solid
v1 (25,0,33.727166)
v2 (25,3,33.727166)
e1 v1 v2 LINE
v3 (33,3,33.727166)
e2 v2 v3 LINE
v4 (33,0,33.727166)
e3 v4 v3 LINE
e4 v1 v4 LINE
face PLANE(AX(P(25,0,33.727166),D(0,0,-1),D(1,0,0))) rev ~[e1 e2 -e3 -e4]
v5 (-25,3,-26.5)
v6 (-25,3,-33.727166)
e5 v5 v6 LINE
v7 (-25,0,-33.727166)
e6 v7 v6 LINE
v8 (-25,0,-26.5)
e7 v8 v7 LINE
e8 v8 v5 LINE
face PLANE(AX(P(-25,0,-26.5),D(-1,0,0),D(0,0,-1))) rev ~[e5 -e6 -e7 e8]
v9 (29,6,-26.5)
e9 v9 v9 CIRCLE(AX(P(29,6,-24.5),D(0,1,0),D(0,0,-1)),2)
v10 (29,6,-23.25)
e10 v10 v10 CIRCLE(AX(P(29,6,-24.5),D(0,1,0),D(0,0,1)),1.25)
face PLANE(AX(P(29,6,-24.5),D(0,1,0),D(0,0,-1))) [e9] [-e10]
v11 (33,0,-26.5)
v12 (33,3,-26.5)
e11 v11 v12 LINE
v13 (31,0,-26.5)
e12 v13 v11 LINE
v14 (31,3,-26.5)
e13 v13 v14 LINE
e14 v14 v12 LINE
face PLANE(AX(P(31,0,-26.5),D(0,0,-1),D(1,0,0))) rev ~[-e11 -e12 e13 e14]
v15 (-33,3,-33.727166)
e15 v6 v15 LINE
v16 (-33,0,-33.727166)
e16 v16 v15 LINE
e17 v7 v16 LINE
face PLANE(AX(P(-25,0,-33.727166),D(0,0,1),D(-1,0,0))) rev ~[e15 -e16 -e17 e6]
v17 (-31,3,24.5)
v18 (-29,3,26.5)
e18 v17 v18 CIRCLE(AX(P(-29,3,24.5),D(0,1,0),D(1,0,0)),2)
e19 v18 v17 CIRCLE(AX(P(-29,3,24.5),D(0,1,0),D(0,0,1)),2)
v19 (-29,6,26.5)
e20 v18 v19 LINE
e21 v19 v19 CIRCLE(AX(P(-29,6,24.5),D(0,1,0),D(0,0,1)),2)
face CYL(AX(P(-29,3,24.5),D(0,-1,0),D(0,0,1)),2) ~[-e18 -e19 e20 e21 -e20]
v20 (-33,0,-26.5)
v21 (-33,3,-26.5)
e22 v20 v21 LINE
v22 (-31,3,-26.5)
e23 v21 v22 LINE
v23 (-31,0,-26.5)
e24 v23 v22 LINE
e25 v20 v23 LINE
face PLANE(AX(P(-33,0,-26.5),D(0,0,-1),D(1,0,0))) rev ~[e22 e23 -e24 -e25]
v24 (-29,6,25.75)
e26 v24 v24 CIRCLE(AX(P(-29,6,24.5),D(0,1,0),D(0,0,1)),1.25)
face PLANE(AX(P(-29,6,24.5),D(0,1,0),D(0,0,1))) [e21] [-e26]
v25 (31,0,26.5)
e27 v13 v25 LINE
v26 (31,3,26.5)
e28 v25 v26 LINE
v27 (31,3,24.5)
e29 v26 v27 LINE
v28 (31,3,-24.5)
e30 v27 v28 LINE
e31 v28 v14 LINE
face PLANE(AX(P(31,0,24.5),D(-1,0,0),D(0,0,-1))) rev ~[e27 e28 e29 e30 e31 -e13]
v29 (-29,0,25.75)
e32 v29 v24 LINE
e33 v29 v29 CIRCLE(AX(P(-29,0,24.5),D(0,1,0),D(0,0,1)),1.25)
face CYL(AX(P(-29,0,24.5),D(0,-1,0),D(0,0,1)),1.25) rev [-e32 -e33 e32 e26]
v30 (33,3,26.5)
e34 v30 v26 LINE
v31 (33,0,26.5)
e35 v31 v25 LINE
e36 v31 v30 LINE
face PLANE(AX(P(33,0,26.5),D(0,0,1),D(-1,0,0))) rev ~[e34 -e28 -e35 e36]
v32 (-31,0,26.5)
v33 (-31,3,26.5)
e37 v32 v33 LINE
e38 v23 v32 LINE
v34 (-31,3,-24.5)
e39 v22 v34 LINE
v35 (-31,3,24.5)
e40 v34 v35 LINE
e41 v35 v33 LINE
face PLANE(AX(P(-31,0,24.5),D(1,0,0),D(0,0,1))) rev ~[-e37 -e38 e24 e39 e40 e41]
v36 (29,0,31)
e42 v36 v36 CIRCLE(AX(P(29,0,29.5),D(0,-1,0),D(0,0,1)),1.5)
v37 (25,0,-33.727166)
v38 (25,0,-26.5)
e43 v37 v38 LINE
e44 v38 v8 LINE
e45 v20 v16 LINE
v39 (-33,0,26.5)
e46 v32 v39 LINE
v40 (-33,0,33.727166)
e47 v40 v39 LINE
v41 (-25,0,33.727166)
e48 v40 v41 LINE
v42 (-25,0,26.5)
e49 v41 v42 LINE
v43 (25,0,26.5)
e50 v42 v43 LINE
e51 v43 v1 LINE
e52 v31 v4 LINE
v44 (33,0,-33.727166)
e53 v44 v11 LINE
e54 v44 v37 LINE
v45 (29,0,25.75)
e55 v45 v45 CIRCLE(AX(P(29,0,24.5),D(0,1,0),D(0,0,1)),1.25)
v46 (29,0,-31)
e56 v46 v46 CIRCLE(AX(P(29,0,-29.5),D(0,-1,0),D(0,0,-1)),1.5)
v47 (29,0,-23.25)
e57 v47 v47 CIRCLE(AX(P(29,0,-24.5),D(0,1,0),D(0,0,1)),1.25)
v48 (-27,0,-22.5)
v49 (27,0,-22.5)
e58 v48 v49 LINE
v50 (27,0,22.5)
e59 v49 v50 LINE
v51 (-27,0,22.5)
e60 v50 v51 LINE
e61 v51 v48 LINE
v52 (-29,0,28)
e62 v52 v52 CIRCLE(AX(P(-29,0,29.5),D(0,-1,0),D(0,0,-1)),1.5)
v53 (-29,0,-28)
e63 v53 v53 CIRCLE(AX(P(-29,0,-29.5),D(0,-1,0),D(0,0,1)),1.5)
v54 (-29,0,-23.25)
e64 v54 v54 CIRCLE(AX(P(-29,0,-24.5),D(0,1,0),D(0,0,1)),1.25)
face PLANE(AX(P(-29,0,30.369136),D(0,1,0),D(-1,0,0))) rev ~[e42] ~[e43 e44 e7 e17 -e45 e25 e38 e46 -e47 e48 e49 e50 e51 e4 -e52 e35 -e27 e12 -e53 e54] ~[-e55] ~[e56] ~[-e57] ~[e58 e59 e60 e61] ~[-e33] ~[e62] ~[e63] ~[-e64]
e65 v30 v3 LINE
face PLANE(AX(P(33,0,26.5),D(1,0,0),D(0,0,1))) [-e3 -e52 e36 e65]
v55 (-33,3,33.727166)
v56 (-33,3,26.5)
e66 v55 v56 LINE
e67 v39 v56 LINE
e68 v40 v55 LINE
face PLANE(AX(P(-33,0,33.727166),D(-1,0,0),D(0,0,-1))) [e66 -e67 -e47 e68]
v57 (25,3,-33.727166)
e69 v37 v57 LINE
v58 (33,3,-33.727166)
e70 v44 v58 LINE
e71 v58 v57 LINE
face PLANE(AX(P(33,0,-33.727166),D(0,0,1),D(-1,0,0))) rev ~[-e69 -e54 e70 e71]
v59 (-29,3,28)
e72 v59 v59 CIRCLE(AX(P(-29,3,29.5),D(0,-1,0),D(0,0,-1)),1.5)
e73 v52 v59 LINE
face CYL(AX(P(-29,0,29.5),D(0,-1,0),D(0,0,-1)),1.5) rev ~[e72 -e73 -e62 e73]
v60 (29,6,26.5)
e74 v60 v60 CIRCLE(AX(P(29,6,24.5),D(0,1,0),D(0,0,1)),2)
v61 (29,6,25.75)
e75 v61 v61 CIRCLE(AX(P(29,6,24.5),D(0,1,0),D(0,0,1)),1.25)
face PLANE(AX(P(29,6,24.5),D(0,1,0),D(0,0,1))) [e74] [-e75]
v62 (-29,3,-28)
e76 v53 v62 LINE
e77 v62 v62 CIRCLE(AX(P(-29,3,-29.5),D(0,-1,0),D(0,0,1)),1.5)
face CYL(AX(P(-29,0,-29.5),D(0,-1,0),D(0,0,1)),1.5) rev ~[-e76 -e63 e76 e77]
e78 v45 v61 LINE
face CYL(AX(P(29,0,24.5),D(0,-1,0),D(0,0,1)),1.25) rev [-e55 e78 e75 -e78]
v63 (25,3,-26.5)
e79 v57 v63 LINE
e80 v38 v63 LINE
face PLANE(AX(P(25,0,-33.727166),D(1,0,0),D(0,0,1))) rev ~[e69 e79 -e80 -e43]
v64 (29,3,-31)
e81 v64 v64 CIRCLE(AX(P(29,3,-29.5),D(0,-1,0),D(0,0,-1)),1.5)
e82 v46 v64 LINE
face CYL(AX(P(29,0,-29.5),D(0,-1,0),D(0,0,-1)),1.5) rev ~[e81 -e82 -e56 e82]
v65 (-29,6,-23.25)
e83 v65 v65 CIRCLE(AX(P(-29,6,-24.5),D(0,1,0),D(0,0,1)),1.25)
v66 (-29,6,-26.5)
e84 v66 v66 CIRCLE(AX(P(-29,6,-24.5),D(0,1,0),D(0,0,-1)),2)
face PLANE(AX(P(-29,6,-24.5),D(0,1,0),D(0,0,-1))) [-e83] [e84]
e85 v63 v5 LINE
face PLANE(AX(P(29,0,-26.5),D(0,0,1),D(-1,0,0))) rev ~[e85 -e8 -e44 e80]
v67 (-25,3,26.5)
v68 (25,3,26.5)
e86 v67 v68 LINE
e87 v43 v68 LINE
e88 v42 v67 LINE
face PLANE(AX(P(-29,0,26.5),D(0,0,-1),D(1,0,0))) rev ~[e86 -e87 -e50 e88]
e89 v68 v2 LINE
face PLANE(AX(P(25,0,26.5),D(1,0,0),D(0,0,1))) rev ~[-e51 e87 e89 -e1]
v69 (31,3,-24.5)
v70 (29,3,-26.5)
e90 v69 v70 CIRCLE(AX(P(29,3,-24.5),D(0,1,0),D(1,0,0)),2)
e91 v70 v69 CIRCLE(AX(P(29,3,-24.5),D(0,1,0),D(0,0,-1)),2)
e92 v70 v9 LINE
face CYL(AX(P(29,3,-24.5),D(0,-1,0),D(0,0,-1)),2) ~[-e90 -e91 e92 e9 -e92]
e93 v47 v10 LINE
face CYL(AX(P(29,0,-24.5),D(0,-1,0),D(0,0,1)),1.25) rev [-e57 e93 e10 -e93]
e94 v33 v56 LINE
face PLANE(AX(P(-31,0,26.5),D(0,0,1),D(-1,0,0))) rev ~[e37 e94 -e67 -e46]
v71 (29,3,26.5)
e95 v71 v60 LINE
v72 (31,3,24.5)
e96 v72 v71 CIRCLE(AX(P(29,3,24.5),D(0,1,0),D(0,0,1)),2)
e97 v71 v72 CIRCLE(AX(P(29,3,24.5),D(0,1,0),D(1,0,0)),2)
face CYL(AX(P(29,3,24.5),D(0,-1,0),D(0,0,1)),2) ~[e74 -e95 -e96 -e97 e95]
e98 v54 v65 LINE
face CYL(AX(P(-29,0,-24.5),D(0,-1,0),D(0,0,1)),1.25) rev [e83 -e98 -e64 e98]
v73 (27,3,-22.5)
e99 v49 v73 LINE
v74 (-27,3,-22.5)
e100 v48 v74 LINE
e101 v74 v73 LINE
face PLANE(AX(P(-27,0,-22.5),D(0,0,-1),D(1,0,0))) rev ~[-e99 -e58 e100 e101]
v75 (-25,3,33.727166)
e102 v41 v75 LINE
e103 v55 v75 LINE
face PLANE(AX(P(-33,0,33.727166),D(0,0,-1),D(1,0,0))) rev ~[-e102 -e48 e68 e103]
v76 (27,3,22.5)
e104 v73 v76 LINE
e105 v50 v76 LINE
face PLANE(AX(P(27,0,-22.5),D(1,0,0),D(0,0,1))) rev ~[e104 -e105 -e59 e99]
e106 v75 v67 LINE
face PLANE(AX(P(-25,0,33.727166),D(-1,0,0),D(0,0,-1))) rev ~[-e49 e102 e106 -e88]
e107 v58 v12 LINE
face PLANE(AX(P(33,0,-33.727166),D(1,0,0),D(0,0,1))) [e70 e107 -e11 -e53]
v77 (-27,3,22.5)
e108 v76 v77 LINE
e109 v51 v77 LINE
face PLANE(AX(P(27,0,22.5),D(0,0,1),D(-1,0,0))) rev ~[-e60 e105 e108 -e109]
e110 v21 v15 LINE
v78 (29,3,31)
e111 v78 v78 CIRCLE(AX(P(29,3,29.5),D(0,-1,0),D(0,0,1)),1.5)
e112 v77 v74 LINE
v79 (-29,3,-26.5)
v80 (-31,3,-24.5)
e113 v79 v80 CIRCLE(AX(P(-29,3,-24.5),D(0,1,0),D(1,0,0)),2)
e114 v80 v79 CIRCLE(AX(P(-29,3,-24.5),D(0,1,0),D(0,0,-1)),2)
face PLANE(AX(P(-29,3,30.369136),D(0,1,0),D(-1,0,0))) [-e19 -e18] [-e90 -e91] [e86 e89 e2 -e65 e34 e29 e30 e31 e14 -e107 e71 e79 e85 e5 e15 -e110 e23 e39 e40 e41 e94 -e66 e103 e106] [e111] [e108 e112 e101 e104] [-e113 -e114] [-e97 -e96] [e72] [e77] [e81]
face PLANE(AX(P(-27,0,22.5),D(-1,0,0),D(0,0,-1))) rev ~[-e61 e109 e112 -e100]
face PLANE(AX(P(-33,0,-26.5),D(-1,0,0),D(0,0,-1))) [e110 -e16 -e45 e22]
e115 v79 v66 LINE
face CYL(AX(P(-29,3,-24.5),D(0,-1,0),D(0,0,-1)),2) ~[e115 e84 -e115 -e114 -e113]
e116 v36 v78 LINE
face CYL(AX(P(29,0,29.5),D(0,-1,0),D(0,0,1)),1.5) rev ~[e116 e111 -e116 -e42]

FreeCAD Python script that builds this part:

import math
import FreeCAD as App
import Part
import Sketcher
from FreeCAD import Vector

doc = App.newDocument("Part")
params = doc.addObject("Spreadsheet::Sheet", "Params")
for row, (alias, value) in enumerate([
    ("sketch1_radius", "2 mm"),
    ("sketch1_diameter", "2.5 mm"),
    ("sketch1_width", "58 mm"),
    ("sketch1_width2", "54 mm"),
    ("sketch1_height", "49 mm"),
    ("pad1_length", "3 mm"),
    ("sketch2_diameter", "4 mm"),
    ("sketch2_diameter2", "2.5 mm"),
    ("pad2_length", "3 mm"),
    ("sketch3_diameter", "3 mm"),
    ("sketch3_radius", "2 mm"),
    ("sketch3_width", "2 mm"),
    ("pad3_length", "3 mm"),
    ("sketch4_width", "2 mm"),
    ("sketch4_width2", "4 mm"),
    ("pad4_length", "3 mm"),
], start=1):
    params.set(f"A{row}", alias)
    params.set(f"B{row}", "=" + value)
    params.setAlias(f"B{row}", alias)

body = doc.addObject("PartDesign::Body", "Body")

sketch1 = doc.addObject("Sketcher::SketchObject", "Sketch")
body.addObject(sketch1)
sketch1.AttachmentSupport = (doc.XZ_Plane, [""])
sketch1.MapMode = "FlatFace"
sketch1.addGeometry([
    Part.LineSegment(Vector(-29, 26.5, 0), Vector(29, 26.5, 0)),
    Part.ArcOfCircle(Part.Circle(Vector(29, 24.5, 0), Vector(0, 0, 1), 2), math.radians(0), math.radians(90)),
    Part.LineSegment(Vector(31, 24.5, 0), Vector(31, -24.5, 0)),
    Part.ArcOfCircle(Part.Circle(Vector(29, -24.5, 0), Vector(0, 0, 1), 2), math.radians(-90), math.radians(0)),
    Part.LineSegment(Vector(29, -26.5, 0), Vector(-29, -26.5, 0)),
    Part.ArcOfCircle(Part.Circle(Vector(-29, -24.5, 0), Vector(0, 0, 1), 2), math.radians(180), math.radians(270)),
    Part.LineSegment(Vector(-31, -24.5, 0), Vector(-31, 24.5, 0)),
    Part.ArcOfCircle(Part.Circle(Vector(-29, 24.5, 0), Vector(0, 0, 1), 2), math.radians(90), math.radians(180)),
    Part.LineSegment(Vector(27, 22.5, 0), Vector(-27, 22.5, 0)),
    Part.LineSegment(Vector(-27, 22.5, 0), Vector(-27, -22.5, 0)),
    Part.LineSegment(Vector(-27, -22.5, 0), Vector(27, -22.5, 0)),
    Part.LineSegment(Vector(27, -22.5, 0), Vector(27, 22.5, 0)),
    Part.Circle(Vector(-29, 24.5, 0), Vector(0, 0, 1), 1.2),
    Part.Circle(Vector(29, 24.5, 0), Vector(0, 0, 1), 1.2),
    Part.Circle(Vector(-29, -24.5, 0), Vector(0, 0, 1), 1.2),
    Part.Circle(Vector(29, -24.5, 0), Vector(0, 0, 1), 1.2),
], False)
sketch1.addConstraint([
    Sketcher.Constraint("Tangent", 0, 2, 1, 2),
    Sketcher.Constraint("Tangent", 1, 1, 2, 1),
    Sketcher.Constraint("Tangent", 2, 2, 3, 2),
    Sketcher.Constraint("Tangent", 3, 1, 4, 1),
    Sketcher.Constraint("Tangent", 4, 2, 5, 2),
    Sketcher.Constraint("Tangent", 5, 1, 6, 1),
    Sketcher.Constraint("Tangent", 6, 2, 7, 2),
    Sketcher.Constraint("Tangent", 7, 1, 0, 1),
    Sketcher.Constraint("Coincident", 8, 2, 9, 1),
    Sketcher.Constraint("Coincident", 9, 2, 10, 1),
    Sketcher.Constraint("Coincident", 10, 2, 11, 1),
    Sketcher.Constraint("Coincident", 11, 2, 8, 1),
    Sketcher.Constraint("Horizontal", 0),
    Sketcher.Constraint("Vertical", 2),
    Sketcher.Constraint("Horizontal", 4),
    Sketcher.Constraint("Vertical", 6),
    Sketcher.Constraint("Horizontal", 8),
    Sketcher.Constraint("Vertical", 9),
    Sketcher.Constraint("Horizontal", 10),
    Sketcher.Constraint("Vertical", 11),
    Sketcher.Constraint("Coincident", 12, 3, 7, 3),
    Sketcher.Constraint("Coincident", 13, 3, 1, 3),
    Sketcher.Constraint("Coincident", 14, 3, 5, 3),
    Sketcher.Constraint("Coincident", 15, 3, 3, 3),
    Sketcher.Constraint("Equal", 1, 3),
    Sketcher.Constraint("Equal", 3, 5),
    Sketcher.Constraint("Equal", 5, 7),
    Sketcher.Constraint("Equal", 12, 13),
    Sketcher.Constraint("Equal", 13, 14),
    Sketcher.Constraint("Equal", 14, 15),
    Sketcher.Constraint("Symmetric", 1, 3, 5, 3, -1, 1),
    Sketcher.Constraint("Symmetric", 8, 2, 10, 2, -1, 1),
    Sketcher.Constraint("Radius", 1, 2.0),
    Sketcher.Constraint("Diameter", 12, 2.5),
    Sketcher.Constraint("DistanceX", 0, 1, 0, 2, 58.0),
    Sketcher.Constraint("DistanceX", 8, 2, 8, 1, 54.0),
    Sketcher.Constraint("DistanceY", 2, 2, 2, 1, 49.0),
    Sketcher.Constraint("DistanceY", 9, 2, 9, 1, 45.0),
])
sketch1.setExpression("Constraints[32]", "Params.sketch1_radius")
sketch1.setExpression("Constraints[33]", "Params.sketch1_diameter")
sketch1.setExpression("Constraints[34]", "Params.sketch1_width")
sketch1.setExpression("Constraints[35]", "Params.sketch1_width2")
sketch1.setExpression("Constraints[36]", "Params.sketch1_height")
pad1 = doc.addObject("PartDesign::Pad", "Pad")
body.addObject(pad1)
pad1.Profile = sketch1
pad1.setExpression("Length", "Params.pad1_length")
pad1.Reversed = True

sketch2 = doc.addObject("Sketcher::SketchObject", "Sketch001")
body.addObject(sketch2)
sketch2.AttachmentSupport = (doc.XZ_Plane, [""])
sketch2.MapMode = "FlatFace"
sketch2.AttachmentOffset = App.Placement(Vector(0, 0, -3), App.Rotation())
sketch2.addGeometry([
    Part.Circle(Vector(-29, -24.5, 0), Vector(0, 0, 1), 2),
    Part.Circle(Vector(-29, -24.5, 0), Vector(0, 0, 1), 1.2),
    Part.Circle(Vector(29, -24.5, 0), Vector(0, 0, 1), 2),
    Part.Circle(Vector(29, -24.5, 0), Vector(0, 0, 1), 1.2),
    Part.Circle(Vector(-29, 24.5, 0), Vector(0, 0, 1), 2),
    Part.Circle(Vector(-29, 24.5, 0), Vector(0, 0, 1), 1.2),
    Part.Circle(Vector(29, 24.5, 0), Vector(0, 0, 1), 2),
    Part.Circle(Vector(29, 24.5, 0), Vector(0, 0, 1), 1.2),
], False)
sketch2.addConstraint([
    Sketcher.Constraint("Coincident", 1, 3, 0, 3),
    Sketcher.Constraint("Coincident", 3, 3, 2, 3),
    Sketcher.Constraint("Coincident", 5, 3, 4, 3),
    Sketcher.Constraint("Coincident", 7, 3, 6, 3),
    Sketcher.Constraint("Equal", 0, 2),
    Sketcher.Constraint("Equal", 1, 3),
    Sketcher.Constraint("Equal", 2, 4),
    Sketcher.Constraint("Equal", 3, 5),
    Sketcher.Constraint("Equal", 4, 6),
    Sketcher.Constraint("Equal", 5, 7),
    Sketcher.Constraint("Symmetric", 2, 3, 4, 3, -1, 1),
    Sketcher.Constraint("Symmetric", 0, 3, 6, 3, -1, 1),
    Sketcher.Constraint("Symmetric", 0, 3, 2, 3, -2),
    Sketcher.Constraint("Diameter", 0, 4.0),
    Sketcher.Constraint("Diameter", 1, 2.5),
    Sketcher.Constraint("DistanceX", 0, 3, -1, 1, 29.0),
    Sketcher.Constraint("DistanceY", 0, 3, 4, 3, 49.0),
])
sketch2.setExpression("Constraints[13]", "Params.sketch2_diameter")
sketch2.setExpression("Constraints[14]", "Params.sketch2_diameter2")
pad2 = doc.addObject("PartDesign::Pad", "Pad001")
body.addObject(pad2)
pad2.Profile = sketch2
pad2.setExpression("Length", "Params.pad2_length")
pad2.Reversed = True

sketch3 = doc.addObject("Sketcher::SketchObject", "Sketch002")
body.addObject(sketch3)
sketch3.AttachmentSupport = (doc.XZ_Plane, [""])
sketch3.MapMode = "FlatFace"
sketch3.addGeometry([
    Part.LineSegment(Vector(-31, 31.7, 0), Vector(-31, 24.5, 0)),
    Part.ArcOfCircle(Part.Circle(Vector(-29, 24.5, 0), Vector(0, 0, 1), 2), math.radians(90), math.radians(180)),
    Part.LineSegment(Vector(-29, 26.5, 0), Vector(-27, 26.5, 0)),
    Part.LineSegment(Vector(-27, 26.5, 0), Vector(-27, 31.7, 0)),
    Part.LineSegment(Vector(-27, 31.7, 0), Vector(-31, 31.7, 0)),
    Part.Circle(Vector(-29, 29.5, 0), Vector(0, 0, 1), 1.5),
    Part.LineSegment(Vector(27, 26.5, 0), Vector(29, 26.5, 0)),
    Part.ArcOfCircle(Part.Circle(Vector(29, 24.5, 0), Vector(0, 0, 1), 2), math.radians(0), math.radians(90)),
    Part.LineSegment(Vector(31, 24.5, 0), Vector(31, 31.7, 0)),
    Part.LineSegment(Vector(31, 31.7, 0), Vector(27, 31.7, 0)),
    Part.LineSegment(Vector(27, 31.7, 0), Vector(27, 26.5, 0)),
    Part.Circle(Vector(29, 29.5, 0), Vector(0, 0, 1), 1.5),
    Part.LineSegment(Vector(31, -31.7, 0), Vector(31, -24.5, 0)),
    Part.ArcOfCircle(Part.Circle(Vector(29, -24.5, 0), Vector(0, 0, 1), 2), math.radians(-90), math.radians(0)),
    Part.LineSegment(Vector(29, -26.5, 0), Vector(27, -26.5, 0)),
    Part.LineSegment(Vector(27, -26.5, 0), Vector(27, -31.7, 0)),
    Part.LineSegment(Vector(27, -31.7, 0), Vector(31, -31.7, 0)),
    Part.Circle(Vector(29, -29.5, 0), Vector(0, 0, 1), 1.5),
    Part.LineSegment(Vector(-27, -26.5, 0), Vector(-29, -26.5, 0)),
    Part.ArcOfCircle(Part.Circle(Vector(-29, -24.5, 0), Vector(0, 0, 1), 2), math.radians(-180), math.radians(-90)),
    Part.LineSegment(Vector(-31, -24.5, 0), Vector(-31, -31.7, 0)),
    Part.LineSegment(Vector(-31, -31.7, 0), Vector(-27, -31.7, 0)),
    Part.LineSegment(Vector(-27, -31.7, 0), Vector(-27, -26.5, 0)),
    Part.Circle(Vector(-29, -29.5, 0), Vector(0, 0, 1), 1.5),
], False)
sketch3.addConstraint([
    Sketcher.Constraint("Tangent", 0, 2, 1, 2),
    Sketcher.Constraint("Tangent", 1, 1, 2, 1),
    Sketcher.Constraint("Coincident", 2, 2, 3, 1),
    Sketcher.Constraint("Coincident", 3, 2, 4, 1),
    Sketcher.Constraint("Coincident", 4, 2, 0, 1),
    Sketcher.Constraint("Tangent", 6, 2, 7, 2),
    Sketcher.Constraint("Tangent", 7, 1, 8, 1),
    Sketcher.Constraint("Coincident", 8, 2, 9, 1),
    Sketcher.Constraint("Coincident", 9, 2, 10, 1),
    Sketcher.Constraint("Coincident", 10, 2, 6, 1),
    Sketcher.Constraint("Tangent", 12, 2, 13, 2),
    Sketcher.Constraint("Tangent", 13, 1, 14, 1),
    Sketcher.Constraint("Coincident", 14, 2, 15, 1),
    Sketcher.Constraint("Coincident", 15, 2, 16, 1),
    Sketcher.Constraint("Coincident", 16, 2, 12, 1),
    Sketcher.Constraint("Tangent", 18, 2, 19, 2),
    Sketcher.Constraint("Tangent", 19, 1, 20, 1),
    Sketcher.Constraint("Coincident", 20, 2, 21, 1),
    Sketcher.Constraint("Coincident", 21, 2, 22, 1),
    Sketcher.Constraint("Coincident", 22, 2, 18, 1),
    Sketcher.Constraint("Vertical", 0),
    Sketcher.Constraint("Horizontal", 2),
    Sketcher.Constraint("Vertical", 3),
    Sketcher.Constraint("Horizontal", 4),
    Sketcher.Constraint("Horizontal", 6),
    Sketcher.Constraint("Vertical", 8),
    Sketcher.Constraint("Horizontal", 9),
    Sketcher.Constraint("Vertical", 10),
    Sketcher.Constraint("Vertical", 12),
    Sketcher.Constraint("Horizontal", 14),
    Sketcher.Constraint("Vertical", 15),
    Sketcher.Constraint("Horizontal", 16),
    Sketcher.Constraint("Horizontal", 18),
    Sketcher.Constraint("Vertical", 20),
    Sketcher.Constraint("Horizontal", 21),
    Sketcher.Constraint("Vertical", 22),
    Sketcher.Constraint("Equal", 1, 7),
    Sketcher.Constraint("Equal", 5, 11),
    Sketcher.Constraint("Equal", 7, 13),
    Sketcher.Constraint("Equal", 11, 17),
    Sketcher.Constraint("Equal", 13, 19),
    Sketcher.Constraint("Equal", 17, 23),
    Sketcher.Constraint("Symmetric", 1, 3, 13, 3, -1, 1),
    Sketcher.Constraint("Symmetric", 5, 3, 17, 3, -1, 1),
    Sketcher.Constraint("Symmetric", 7, 3, 19, 3, -1, 1),
    Sketcher.Constraint("Symmetric", 11, 3, 23, 3, -1, 1),
    Sketcher.Constraint("Symmetric", 3, 2, 15, 2, -1, 1),
    Sketcher.Constraint("Symmetric", 9, 2, 21, 2, -1, 1),
    Sketcher.Constraint("Symmetric", 1, 3, 7, 3, -2),
    Sketcher.Constraint("Symmetric", 5, 3, 11, 3, -2),
    Sketcher.Constraint("Symmetric", 3, 2, 9, 2, -2),
    Sketcher.Constraint("Vertical", 1, 3, 5, 3),
    Sketcher.Constraint("Diameter", 5, 3.0),
    Sketcher.Constraint("Radius", 1, 2.0),
    Sketcher.Constraint("DistanceX", 2, 1, 2, 2, 2.0),
    Sketcher.Constraint("DistanceX", 1, 3, -1, 1, 29.0),
    Sketcher.Constraint("DistanceY", 1, 3, 5, 3, 5.0),
    Sketcher.Constraint("DistanceY", 13, 3, 7, 3, 49.0),
    Sketcher.Constraint("DistanceY", 0, 2, 0, 1, 7.227166),
])
sketch3.setExpression("Constraints[52]", "Params.sketch3_diameter")
sketch3.setExpression("Constraints[53]", "Params.sketch3_radius")
sketch3.setExpression("Constraints[54]", "Params.sketch3_width")
pad3 = doc.addObject("PartDesign::Pad", "Pad002")
body.addObject(pad3)
pad3.Profile = sketch3
pad3.setExpression("Length", "Params.pad3_length")
pad3.Reversed = True

sketch4 = doc.addObject("Sketcher::SketchObject", "Sketch003")
body.addObject(sketch4)
sketch4.AttachmentSupport = (doc.XZ_Plane, [""])
sketch4.MapMode = "FlatFace"
sketch4.addGeometry([
    Part.LineSegment(Vector(-33, 26.5, 0), Vector(-31, 26.5, 0)),
    Part.LineSegment(Vector(-31, 26.5, 0), Vector(-31, 31.7, 0)),
    Part.LineSegment(Vector(-31, 31.7, 0), Vector(-27, 31.7, 0)),
    Part.LineSegment(Vector(-27, 31.7, 0), Vector(-27, 26.5, 0)),
    Part.LineSegment(Vector(-27, 26.5, 0), Vector(-25, 26.5, 0)),
    Part.LineSegment(Vector(-25, 26.5, 0), Vector(-25, 33.7, 0)),
    Part.LineSegment(Vector(-25, 33.7, 0), Vector(-33, 33.7, 0)),
    Part.LineSegment(Vector(-33, 33.7, 0), Vector(-33, 26.5, 0)),
    Part.LineSegment(Vector(27, 26.5, 0), Vector(27, 31.7, 0)),
    Part.LineSegment(Vector(27, 31.7, 0), Vector(31, 31.7, 0)),
    Part.LineSegment(Vector(31, 31.7, 0), Vector(31, 26.5, 0)),
    Part.LineSegment(Vector(31, 26.5, 0), Vector(33, 26.5, 0)),
    Part.LineSegment(Vector(33, 26.5, 0), Vector(33, 33.7, 0)),
    Part.LineSegment(Vector(33, 33.7, 0), Vector(25, 33.7, 0)),
    Part.LineSegment(Vector(25, 33.7, 0), Vector(25, 26.5, 0)),
    Part.LineSegment(Vector(25, 26.5, 0), Vector(27, 26.5, 0)),
    Part.LineSegment(Vector(33, -26.5, 0), Vector(31, -26.5, 0)),
    Part.LineSegment(Vector(31, -26.5, 0), Vector(31, -31.7, 0)),
    Part.LineSegment(Vector(31, -31.7, 0), Vector(27, -31.7, 0)),
    Part.LineSegment(Vector(27, -31.7, 0), Vector(27, -26.5, 0)),
    Part.LineSegment(Vector(27, -26.5, 0), Vector(25, -26.5, 0)),
    Part.LineSegment(Vector(25, -26.5, 0), Vector(25, -33.7, 0)),
    Part.LineSegment(Vector(25, -33.7, 0), Vector(33, -33.7, 0)),
    Part.LineSegment(Vector(33, -33.7, 0), Vector(33, -26.5, 0)),
    Part.LineSegment(Vector(-27, -26.5, 0), Vector(-27, -31.7, 0)),
    Part.LineSegment(Vector(-27, -31.7, 0), Vector(-31, -31.7, 0)),
    Part.LineSegment(Vector(-31, -31.7, 0), Vector(-31, -26.5, 0)),
    Part.LineSegment(Vector(-31, -26.5, 0), Vector(-33, -26.5, 0)),
    Part.LineSegment(Vector(-33, -26.5, 0), Vector(-33, -33.7, 0)),
    Part.LineSegment(Vector(-33, -33.7, 0), Vector(-25, -33.7, 0)),
    Part.LineSegment(Vector(-25, -33.7, 0), Vector(-25, -26.5, 0)),
    Part.LineSegment(Vector(-25, -26.5, 0), Vector(-27, -26.5, 0)),
], False)
sketch4.addConstraint([
    Sketcher.Constraint("Coincident", 0, 2, 1, 1),
    Sketcher.Constraint("Coincident", 1, 2, 2, 1),
    Sketcher.Constraint("Coincident", 2, 2, 3, 1),
    Sketcher.Constraint("Coincident", 3, 2, 4, 1),
    Sketcher.Constraint("Coincident", 4, 2, 5, 1),
    Sketcher.Constraint("Coincident", 5, 2, 6, 1),
    Sketcher.Constraint("Coincident", 6, 2, 7, 1),
    Sketcher.Constraint("Coincident", 7, 2, 0, 1),
    Sketcher.Constraint("Coincident", 8, 2, 9, 1),
    Sketcher.Constraint("Coincident", 9, 2, 10, 1),
    Sketcher.Constraint("Coincident", 10, 2, 11, 1),
    Sketcher.Constraint("Coincident", 11, 2, 12, 1),
    Sketcher.Constraint("Coincident", 12, 2, 13, 1),
    Sketcher.Constraint("Coincident", 13, 2, 14, 1),
    Sketcher.Constraint("Coincident", 14, 2, 15, 1),
    Sketcher.Constraint("Coincident", 15, 2, 8, 1),
    Sketcher.Constraint("Coincident", 16, 2, 17, 1),
    Sketcher.Constraint("Coincident", 17, 2, 18, 1),
    Sketcher.Constraint("Coincident", 18, 2, 19, 1),
    Sketcher.Constraint("Coincident", 19, 2, 20, 1),
    Sketcher.Constraint("Coincident", 20, 2, 21, 1),
    Sketcher.Constraint("Coincident", 21, 2, 22, 1),
    Sketcher.Constraint("Coincident", 22, 2, 23, 1),
    Sketcher.Constraint("Coincident", 23, 2, 16, 1),
    Sketcher.Constraint("Coincident", 24, 2, 25, 1),
    Sketcher.Constraint("Coincident", 25, 2, 26, 1),
    Sketcher.Constraint("Coincident", 26, 2, 27, 1),
    Sketcher.Constraint("Coincident", 27, 2, 28, 1),
    Sketcher.Constraint("Coincident", 28, 2, 29, 1),
    Sketcher.Constraint("Coincident", 29, 2, 30, 1),
    Sketcher.Constraint("Coincident", 30, 2, 31, 1),
    Sketcher.Constraint("Coincident", 31, 2, 24, 1),
    Sketcher.Constraint("Horizontal", 0),
    Sketcher.Constraint("Vertical", 1),
    Sketcher.Constraint("Horizontal", 2),
    Sketcher.Constraint("Vertical", 3),
    Sketcher.Constraint("Horizontal", 4),
    Sketcher.Constraint("Vertical", 5),
    Sketcher.Constraint("Horizontal", 6),
    Sketcher.Constraint("Vertical", 7),
    Sketcher.Constraint("Vertical", 8),
    Sketcher.Constraint("Horizontal", 9),
    Sketcher.Constraint("Vertical", 10),
    Sketcher.Constraint("Horizontal", 11),
    Sketcher.Constraint("Vertical", 12),
    Sketcher.Constraint("Horizontal", 13),
    Sketcher.Constraint("Vertical", 14),
    Sketcher.Constraint("Horizontal", 15),
    Sketcher.Constraint("Horizontal", 16),
    Sketcher.Constraint("Vertical", 17),
    Sketcher.Constraint("Horizontal", 18),
    Sketcher.Constraint("Vertical", 19),
    Sketcher.Constraint("Horizontal", 20),
    Sketcher.Constraint("Vertical", 21),
    Sketcher.Constraint("Horizontal", 22),
    Sketcher.Constraint("Vertical", 23),
    Sketcher.Constraint("Vertical", 24),
    Sketcher.Constraint("Horizontal", 25),
    Sketcher.Constraint("Vertical", 26),
    Sketcher.Constraint("Horizontal", 27),
    Sketcher.Constraint("Vertical", 28),
    Sketcher.Constraint("Horizontal", 29),
    Sketcher.Constraint("Vertical", 30),
    Sketcher.Constraint("Horizontal", 31),
    Sketcher.Constraint("Symmetric", 0, 2, 16, 2, -1, 1),
    Sketcher.Constraint("Symmetric", 2, 2, 18, 2, -1, 1),
    Sketcher.Constraint("Symmetric", 4, 2, 20, 2, -1, 1),
    Sketcher.Constraint("Symmetric", 6, 2, 22, 2, -1, 1),
    Sketcher.Constraint("Symmetric", 8, 2, 24, 2, -1, 1),
    Sketcher.Constraint("Symmetric", 10, 2, 26, 2, -1, 1),
    Sketcher.Constraint("Symmetric", 12, 2, 28, 2, -1, 1),
    Sketcher.Constraint("Symmetric", 14, 2, 30, 2, -1, 1),
    Sketcher.Constraint("Symmetric", 2, 2, 8, 2, -2),
    Sketcher.Constraint("Symmetric", 0, 2, 10, 2, -2),
    Sketcher.Constraint("Symmetric", 6, 2, 12, 2, -2),
    Sketcher.Constraint("Symmetric", 4, 2, 14, 2, -2),
    Sketcher.Constraint("Horizontal", 0, 2, 3, 2),
    Sketcher.Constraint("Equal", 0, 4),
    Sketcher.Constraint("DistanceX", 0, 1, 0, 2, 2.0),
    Sketcher.Constraint("DistanceX", 2, 1, 2, 2, 4.0),
    Sketcher.Constraint("DistanceX", 0, 2, -1, 1, 31.0),
    Sketcher.Constraint("DistanceY", 2, 2, 5, 2, 2.0),
    Sketcher.Constraint("DistanceY", 16, 2, 10, 2, 53.0),
    Sketcher.Constraint("DistanceY", 1, 1, 1, 2, 5.227166),
])
sketch4.setExpression("Constraints[78]", "Params.sketch4_width")
sketch4.setExpression("Constraints[79]", "Params.sketch4_width2")
pad4 = doc.addObject("PartDesign::Pad", "Pad003")
body.addObject(pad4)
pad4.Profile = sketch4
pad4.setExpression("Length", "Params.pad4_length")
pad4.Reversed = True

doc.recompute()
